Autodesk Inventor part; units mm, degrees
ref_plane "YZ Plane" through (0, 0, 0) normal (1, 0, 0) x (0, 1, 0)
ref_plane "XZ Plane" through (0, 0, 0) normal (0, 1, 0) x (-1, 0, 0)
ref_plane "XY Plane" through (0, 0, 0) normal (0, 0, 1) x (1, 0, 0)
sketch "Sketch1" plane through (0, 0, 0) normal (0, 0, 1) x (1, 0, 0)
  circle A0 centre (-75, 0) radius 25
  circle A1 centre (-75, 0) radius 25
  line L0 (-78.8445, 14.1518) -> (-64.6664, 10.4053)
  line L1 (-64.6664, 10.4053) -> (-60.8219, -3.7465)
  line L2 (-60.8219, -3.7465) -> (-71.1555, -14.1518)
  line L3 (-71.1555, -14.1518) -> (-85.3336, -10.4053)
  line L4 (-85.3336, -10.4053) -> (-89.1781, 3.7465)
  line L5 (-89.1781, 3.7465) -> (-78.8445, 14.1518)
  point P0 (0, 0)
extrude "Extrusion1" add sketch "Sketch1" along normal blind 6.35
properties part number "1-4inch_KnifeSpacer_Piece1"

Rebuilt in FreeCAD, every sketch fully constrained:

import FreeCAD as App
import Part
import Sketcher
from FreeCAD import Vector
Q = App.Units.Quantity


def add_polygon(sketch, points):
    """Adds a closed chain of lines whose ends are joined by coincident constraints."""
    first, n = sketch.GeometryCount, len(points)
    for a, b in zip(points, points[1:] + points[:1]):
        sketch.addGeometry(Part.LineSegment(App.Vector(*a, 0), App.Vector(*b, 0)), False)
    for i in range(n):
        sketch.addConstraint(Sketcher.Constraint("Coincident", first + i, 2, first + (i + 1) % n, 1))

doc = App.newDocument("Part")
body = doc.addObject("PartDesign::Body", "Body")

# Sketch on XY plane
sketch1 = body.newObject("Sketcher::SketchObject", "Sketch")
sketch1.AttachmentSupport = (doc.getObject("XY_Plane"), [""])
sketch1.MapMode = "FlatFace"
sketch1.addGeometry(Part.Circle(Vector(-75, 0, 0), Vector(0, 0, 1), 25), False)  # 0
add_polygon(sketch1, [(-89, 4), (-79, 14), (-65, 10), (-61, -4), (-71, -14), (-85, -10)])  # lines 1-6
sketch1.addConstraint([
    Sketcher.Constraint("PointOnObject", 0, 3, -1),
    Sketcher.Constraint("Parallel", 1, 4),
    Sketcher.Constraint("Parallel", 2, 5),
    Sketcher.Constraint("Parallel", 3, 6),
    Sketcher.Constraint("Equal", 1, 2),
    Sketcher.Constraint("Equal", 2, 3),
    Sketcher.Constraint("Equal", 3, 4),
    Sketcher.Constraint("Diameter", 0, Q("1.9685 in")),
    Sketcher.Constraint("DistanceY", 3, 2, -1, 1, Q("0.1475 in")),
    Sketcher.Constraint("DistanceX", 4, 2, -1, 1, Q("2.8014 in")),
    Sketcher.Constraint("DistanceX", 5, 2, -1, 1, Q("3.3596 in")),
    Sketcher.Constraint("DistanceY", -1, 1, 6, 2, Q("0.1475 in")),
    Sketcher.Constraint("DistanceY", 2, 2, 1, 2, Q("0.1475 in")),
    Sketcher.Constraint("DistanceX", 0, 3, 3, 2, Q("0.5582 in")),
    Sketcher.Constraint("DistanceX", 6, 2, 0, 3, Q("0.5582 in")),
])
pad1 = body.newObject("PartDesign::Pad", "Pad")
pad1.Profile = sketch1
pad1.Length = Q("0.25 in")

doc.recompute()
